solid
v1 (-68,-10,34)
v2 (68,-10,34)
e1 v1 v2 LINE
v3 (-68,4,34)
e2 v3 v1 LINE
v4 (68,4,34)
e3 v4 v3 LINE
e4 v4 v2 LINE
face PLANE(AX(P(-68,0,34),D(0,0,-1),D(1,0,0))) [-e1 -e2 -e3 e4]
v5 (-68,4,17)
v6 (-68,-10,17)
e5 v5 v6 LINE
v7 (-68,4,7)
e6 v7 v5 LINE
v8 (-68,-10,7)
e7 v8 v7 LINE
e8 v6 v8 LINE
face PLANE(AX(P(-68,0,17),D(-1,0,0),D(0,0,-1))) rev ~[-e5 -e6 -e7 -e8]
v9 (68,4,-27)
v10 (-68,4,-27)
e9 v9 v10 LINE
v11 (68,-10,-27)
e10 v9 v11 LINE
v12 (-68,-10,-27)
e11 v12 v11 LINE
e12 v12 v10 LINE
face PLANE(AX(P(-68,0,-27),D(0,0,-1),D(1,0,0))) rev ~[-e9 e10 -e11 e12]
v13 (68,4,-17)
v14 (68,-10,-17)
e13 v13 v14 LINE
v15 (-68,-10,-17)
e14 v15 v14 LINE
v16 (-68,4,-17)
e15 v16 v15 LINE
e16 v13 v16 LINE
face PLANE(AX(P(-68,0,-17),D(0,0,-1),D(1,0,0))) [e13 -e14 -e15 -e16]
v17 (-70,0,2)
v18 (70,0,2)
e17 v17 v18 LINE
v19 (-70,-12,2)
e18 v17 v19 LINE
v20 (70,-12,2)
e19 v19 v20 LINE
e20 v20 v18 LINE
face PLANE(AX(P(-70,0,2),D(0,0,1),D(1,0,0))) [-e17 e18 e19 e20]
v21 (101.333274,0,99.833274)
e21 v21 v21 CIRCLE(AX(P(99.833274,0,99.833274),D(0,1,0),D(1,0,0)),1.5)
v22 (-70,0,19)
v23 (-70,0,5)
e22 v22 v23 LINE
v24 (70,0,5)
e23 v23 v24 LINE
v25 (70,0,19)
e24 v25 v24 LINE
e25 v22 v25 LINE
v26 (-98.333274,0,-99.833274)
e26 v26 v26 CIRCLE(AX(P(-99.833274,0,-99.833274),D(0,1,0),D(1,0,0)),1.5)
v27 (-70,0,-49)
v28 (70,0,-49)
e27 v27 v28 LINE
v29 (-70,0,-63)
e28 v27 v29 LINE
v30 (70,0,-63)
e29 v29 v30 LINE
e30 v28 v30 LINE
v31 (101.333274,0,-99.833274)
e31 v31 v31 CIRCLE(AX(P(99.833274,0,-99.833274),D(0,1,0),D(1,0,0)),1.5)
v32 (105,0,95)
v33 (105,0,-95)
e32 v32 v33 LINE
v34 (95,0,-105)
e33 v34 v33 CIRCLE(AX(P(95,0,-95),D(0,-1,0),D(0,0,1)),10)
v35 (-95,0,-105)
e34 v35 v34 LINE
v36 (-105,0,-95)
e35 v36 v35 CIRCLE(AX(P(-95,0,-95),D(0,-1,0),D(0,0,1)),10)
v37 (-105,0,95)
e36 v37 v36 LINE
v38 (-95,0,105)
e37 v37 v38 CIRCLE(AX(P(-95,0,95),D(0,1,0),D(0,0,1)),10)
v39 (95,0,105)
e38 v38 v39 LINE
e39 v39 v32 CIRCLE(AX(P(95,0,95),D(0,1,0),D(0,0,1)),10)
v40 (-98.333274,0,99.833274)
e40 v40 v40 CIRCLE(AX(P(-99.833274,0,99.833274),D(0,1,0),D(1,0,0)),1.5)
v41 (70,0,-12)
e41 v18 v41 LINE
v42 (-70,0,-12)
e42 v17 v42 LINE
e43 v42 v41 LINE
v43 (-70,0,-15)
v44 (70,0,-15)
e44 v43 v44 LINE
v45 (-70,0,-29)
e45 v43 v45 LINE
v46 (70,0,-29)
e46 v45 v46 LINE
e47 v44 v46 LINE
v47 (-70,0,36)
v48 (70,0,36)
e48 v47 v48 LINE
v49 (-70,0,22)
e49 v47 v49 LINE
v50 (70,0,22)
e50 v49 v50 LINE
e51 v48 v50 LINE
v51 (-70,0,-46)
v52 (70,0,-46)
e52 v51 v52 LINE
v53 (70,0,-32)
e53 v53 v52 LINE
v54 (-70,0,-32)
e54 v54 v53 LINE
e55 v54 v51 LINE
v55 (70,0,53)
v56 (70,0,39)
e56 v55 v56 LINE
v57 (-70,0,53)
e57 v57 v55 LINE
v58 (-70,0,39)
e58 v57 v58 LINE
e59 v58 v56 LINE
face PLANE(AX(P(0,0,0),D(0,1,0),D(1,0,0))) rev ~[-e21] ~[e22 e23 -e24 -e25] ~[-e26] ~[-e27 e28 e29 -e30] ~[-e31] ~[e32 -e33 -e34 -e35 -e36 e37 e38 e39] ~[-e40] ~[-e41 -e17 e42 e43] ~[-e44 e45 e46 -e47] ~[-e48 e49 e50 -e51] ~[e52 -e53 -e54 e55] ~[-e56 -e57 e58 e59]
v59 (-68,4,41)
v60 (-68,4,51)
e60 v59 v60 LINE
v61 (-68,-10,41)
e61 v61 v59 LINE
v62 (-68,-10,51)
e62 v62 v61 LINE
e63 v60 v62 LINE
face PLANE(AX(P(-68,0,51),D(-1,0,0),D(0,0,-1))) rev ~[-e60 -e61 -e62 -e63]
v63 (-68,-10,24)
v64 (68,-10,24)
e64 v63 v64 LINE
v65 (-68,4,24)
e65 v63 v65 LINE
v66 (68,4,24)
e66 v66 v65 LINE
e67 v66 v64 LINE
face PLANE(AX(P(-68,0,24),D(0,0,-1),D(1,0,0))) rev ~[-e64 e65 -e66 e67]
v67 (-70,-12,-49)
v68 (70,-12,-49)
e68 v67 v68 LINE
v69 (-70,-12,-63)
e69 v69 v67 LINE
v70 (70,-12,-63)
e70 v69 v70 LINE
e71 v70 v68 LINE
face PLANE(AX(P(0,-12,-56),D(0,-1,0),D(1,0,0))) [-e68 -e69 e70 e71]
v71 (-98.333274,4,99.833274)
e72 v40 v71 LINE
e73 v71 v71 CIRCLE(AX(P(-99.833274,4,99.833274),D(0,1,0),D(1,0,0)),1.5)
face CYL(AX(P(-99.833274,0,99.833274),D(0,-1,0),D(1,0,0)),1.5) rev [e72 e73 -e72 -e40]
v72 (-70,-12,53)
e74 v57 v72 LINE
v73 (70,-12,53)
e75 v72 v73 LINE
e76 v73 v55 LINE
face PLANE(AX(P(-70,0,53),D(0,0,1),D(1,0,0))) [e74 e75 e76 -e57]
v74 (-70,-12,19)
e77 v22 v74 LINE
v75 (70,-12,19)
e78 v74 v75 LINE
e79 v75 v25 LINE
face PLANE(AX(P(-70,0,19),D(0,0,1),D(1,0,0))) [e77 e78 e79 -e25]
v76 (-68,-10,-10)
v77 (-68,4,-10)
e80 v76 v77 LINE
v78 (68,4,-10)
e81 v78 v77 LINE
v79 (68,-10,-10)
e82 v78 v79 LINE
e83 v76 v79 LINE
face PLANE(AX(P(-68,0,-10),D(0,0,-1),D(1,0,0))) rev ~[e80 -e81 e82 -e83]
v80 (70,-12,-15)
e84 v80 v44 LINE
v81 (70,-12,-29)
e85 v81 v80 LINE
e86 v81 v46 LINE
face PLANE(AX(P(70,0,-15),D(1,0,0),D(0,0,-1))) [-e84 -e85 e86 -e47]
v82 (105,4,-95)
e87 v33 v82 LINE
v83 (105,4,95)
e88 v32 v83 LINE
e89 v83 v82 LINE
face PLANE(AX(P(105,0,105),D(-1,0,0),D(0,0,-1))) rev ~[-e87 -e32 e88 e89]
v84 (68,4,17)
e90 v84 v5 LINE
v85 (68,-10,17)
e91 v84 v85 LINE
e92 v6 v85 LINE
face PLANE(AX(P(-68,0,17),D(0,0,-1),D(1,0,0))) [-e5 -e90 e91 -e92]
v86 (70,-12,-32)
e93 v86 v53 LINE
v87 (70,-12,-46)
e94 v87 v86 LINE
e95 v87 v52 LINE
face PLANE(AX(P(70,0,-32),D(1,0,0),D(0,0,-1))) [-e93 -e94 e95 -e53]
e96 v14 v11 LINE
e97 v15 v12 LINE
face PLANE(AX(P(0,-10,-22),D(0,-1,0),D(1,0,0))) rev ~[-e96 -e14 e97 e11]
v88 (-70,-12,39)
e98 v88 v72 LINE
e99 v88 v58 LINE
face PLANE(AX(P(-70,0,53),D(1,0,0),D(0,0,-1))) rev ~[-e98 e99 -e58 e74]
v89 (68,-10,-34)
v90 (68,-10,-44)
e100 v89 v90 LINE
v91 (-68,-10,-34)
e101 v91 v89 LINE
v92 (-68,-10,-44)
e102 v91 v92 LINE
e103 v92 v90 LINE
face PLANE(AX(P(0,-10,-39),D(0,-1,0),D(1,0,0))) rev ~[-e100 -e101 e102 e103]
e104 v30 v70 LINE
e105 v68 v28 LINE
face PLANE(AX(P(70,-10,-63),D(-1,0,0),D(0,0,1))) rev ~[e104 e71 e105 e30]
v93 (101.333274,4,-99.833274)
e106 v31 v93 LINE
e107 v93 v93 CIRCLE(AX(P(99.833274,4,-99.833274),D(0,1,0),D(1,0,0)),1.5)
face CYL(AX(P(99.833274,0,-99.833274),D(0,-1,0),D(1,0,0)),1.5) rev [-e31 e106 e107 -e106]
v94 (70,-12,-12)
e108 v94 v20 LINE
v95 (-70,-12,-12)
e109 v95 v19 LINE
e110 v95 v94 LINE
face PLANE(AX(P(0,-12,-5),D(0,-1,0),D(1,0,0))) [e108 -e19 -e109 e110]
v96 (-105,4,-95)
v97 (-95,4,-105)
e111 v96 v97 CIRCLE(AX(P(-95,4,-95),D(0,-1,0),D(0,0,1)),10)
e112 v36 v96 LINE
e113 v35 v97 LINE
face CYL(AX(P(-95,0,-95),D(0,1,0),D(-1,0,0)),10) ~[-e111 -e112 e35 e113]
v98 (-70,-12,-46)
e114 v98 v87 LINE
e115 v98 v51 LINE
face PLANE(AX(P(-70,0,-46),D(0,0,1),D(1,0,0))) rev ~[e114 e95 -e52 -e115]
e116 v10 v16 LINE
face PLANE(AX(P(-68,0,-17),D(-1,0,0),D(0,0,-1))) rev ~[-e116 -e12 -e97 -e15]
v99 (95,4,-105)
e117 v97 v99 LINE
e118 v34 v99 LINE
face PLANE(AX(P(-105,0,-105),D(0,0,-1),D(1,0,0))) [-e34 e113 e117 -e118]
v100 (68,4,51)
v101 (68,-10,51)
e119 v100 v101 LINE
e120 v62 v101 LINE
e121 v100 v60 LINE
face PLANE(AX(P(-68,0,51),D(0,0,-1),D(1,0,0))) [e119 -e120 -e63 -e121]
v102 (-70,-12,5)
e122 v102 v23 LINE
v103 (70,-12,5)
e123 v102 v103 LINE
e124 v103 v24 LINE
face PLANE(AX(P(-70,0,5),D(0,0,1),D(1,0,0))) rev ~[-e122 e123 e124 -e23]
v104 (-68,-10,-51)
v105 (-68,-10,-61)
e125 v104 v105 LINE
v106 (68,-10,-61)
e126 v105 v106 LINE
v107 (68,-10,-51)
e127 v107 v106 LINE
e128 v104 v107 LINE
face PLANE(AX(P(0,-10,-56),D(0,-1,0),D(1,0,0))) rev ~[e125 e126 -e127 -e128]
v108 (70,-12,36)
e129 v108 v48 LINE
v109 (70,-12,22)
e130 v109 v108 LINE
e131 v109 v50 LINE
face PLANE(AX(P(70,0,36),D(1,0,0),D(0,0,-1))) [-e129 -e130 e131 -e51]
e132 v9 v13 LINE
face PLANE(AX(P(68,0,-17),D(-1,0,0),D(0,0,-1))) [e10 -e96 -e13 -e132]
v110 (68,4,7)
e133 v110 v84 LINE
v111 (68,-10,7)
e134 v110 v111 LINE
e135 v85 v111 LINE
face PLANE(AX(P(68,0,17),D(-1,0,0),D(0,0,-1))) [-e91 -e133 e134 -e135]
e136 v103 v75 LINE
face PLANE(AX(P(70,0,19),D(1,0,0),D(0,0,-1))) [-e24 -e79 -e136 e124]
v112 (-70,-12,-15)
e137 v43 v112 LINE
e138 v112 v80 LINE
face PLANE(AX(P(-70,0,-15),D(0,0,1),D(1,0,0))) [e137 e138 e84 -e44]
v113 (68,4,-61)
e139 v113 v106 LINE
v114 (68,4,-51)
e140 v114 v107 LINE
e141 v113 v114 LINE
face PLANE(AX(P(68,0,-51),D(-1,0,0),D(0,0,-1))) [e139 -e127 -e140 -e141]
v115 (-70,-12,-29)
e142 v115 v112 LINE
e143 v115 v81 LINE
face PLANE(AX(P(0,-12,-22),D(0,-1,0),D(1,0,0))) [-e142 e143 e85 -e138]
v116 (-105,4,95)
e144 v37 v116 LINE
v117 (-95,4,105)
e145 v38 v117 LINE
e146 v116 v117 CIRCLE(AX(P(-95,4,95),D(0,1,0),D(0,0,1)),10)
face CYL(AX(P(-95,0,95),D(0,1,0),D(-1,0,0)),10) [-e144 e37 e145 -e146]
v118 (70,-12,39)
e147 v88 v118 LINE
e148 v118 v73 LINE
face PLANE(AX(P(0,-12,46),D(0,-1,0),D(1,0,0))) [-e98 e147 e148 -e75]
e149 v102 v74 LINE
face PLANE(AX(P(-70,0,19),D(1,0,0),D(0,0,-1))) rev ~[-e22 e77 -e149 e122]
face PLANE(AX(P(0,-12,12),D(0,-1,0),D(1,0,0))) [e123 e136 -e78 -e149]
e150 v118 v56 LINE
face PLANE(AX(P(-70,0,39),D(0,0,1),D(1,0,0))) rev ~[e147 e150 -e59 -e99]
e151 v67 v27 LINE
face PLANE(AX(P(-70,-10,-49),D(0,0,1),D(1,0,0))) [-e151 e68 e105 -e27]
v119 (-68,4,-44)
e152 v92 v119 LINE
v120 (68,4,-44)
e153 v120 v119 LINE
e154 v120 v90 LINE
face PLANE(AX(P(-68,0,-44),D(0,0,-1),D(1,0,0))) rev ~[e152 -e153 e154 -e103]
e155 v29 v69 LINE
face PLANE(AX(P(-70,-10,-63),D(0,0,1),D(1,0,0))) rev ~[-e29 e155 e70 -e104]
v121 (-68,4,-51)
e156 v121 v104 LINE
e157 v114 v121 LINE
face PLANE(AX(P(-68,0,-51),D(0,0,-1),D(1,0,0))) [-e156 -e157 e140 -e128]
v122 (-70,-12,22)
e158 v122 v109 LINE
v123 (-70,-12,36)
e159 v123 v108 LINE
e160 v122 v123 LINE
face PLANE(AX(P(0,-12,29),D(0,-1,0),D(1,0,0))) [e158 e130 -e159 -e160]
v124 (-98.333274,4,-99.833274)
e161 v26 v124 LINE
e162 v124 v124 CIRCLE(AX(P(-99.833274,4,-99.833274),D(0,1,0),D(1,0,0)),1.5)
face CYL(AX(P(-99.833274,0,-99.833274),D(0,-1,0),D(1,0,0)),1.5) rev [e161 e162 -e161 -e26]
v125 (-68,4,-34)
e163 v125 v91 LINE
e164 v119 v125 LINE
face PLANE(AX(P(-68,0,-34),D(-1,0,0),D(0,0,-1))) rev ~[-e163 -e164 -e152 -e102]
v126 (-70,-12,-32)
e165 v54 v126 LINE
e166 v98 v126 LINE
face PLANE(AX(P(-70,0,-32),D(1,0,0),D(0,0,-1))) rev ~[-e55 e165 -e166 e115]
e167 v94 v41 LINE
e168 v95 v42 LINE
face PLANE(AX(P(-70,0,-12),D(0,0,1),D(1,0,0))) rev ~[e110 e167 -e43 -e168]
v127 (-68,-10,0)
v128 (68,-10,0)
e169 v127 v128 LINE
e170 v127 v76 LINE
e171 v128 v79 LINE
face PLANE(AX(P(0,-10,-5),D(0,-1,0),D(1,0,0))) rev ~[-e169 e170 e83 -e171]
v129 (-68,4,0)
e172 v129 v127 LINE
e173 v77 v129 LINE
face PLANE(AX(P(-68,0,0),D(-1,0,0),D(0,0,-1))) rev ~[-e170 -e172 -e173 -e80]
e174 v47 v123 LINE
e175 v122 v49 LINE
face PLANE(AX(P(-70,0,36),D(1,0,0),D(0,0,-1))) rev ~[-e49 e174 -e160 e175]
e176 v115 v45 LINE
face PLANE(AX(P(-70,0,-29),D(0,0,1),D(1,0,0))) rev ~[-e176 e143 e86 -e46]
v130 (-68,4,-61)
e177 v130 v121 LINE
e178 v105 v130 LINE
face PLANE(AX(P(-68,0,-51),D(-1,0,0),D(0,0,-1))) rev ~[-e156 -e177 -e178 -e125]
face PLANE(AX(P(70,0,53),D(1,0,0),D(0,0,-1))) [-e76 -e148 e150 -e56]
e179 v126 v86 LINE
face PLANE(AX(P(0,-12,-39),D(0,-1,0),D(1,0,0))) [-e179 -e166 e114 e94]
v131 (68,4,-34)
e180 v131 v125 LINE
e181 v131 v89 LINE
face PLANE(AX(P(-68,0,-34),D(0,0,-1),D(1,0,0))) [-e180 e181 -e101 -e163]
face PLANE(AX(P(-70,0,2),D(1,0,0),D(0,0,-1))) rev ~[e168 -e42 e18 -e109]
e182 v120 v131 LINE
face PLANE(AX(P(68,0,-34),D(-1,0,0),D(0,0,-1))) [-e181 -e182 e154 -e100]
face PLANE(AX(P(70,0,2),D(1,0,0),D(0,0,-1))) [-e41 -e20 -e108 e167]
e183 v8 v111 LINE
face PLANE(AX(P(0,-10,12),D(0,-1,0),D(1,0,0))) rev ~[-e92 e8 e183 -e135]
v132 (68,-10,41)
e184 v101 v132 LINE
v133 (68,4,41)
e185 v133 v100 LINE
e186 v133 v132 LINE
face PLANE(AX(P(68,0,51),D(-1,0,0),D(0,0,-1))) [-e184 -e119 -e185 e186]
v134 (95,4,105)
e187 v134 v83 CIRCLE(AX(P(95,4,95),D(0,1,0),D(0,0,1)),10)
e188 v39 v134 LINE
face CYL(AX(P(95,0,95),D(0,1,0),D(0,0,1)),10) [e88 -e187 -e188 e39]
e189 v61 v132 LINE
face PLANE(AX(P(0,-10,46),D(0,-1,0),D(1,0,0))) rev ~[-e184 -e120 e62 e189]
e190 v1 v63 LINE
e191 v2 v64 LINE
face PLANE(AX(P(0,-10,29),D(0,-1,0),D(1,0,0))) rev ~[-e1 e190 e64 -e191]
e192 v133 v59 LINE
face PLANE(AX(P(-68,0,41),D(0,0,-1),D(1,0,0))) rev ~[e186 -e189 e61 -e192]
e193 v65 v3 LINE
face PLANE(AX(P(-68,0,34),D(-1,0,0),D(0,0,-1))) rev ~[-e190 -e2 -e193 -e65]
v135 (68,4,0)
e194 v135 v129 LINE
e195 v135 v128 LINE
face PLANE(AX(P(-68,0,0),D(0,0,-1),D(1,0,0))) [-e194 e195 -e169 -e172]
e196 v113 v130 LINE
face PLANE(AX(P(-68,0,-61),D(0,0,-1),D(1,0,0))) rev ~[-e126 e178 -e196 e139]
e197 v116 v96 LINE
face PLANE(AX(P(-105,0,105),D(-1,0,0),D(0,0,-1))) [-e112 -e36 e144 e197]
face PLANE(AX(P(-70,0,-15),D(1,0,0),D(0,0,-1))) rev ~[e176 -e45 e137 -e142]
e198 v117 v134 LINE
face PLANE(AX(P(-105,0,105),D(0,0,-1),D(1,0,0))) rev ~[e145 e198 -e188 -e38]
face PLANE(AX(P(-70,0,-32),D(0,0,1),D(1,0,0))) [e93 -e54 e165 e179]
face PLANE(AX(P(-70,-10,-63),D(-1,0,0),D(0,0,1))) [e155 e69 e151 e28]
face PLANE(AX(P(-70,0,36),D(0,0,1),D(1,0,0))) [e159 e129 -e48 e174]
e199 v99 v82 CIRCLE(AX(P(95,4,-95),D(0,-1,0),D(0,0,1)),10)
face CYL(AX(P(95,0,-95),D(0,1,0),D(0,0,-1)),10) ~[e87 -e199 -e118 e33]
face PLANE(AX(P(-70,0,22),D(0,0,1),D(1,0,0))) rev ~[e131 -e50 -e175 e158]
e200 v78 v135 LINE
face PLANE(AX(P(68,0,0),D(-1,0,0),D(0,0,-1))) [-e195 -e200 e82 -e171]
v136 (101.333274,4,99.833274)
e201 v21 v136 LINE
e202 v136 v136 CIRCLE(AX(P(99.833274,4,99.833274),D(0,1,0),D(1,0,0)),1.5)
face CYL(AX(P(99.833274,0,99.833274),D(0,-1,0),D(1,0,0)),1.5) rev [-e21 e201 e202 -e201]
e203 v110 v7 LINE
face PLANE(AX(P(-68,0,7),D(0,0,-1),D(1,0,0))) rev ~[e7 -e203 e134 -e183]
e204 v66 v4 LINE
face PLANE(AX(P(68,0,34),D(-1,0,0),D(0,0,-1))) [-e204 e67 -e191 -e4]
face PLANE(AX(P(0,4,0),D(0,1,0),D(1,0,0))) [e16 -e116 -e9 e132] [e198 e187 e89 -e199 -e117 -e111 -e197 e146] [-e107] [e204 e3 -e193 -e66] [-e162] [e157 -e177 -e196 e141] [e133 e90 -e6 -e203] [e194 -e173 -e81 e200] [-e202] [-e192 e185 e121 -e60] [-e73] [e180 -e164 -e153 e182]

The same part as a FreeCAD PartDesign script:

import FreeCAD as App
import Part
import Sketcher
Q = App.Units.Quantity


def edges_at(feature, points):
    """Names of the edges that pass closest to the given points."""
    edges = feature.Shape.Edges
    near = lambda p: min(range(len(edges)), key=lambda i: edges[i].distToShape(Part.Vertex(*p))[0])
    return sorted({f"Edge{near(p) + 1}" for p in points})

doc = App.newDocument("Part")
body = doc.addObject("PartDesign::Body", "Body")

sketch1 = body.newObject("Sketcher::SketchObject", "Sketch")
sketch1.AttachmentSupport = (doc.getObject("XZ_Plane"), [""])
sketch1.MapMode = "FlatFace"
sketch1.addGeometry([
    Part.LineSegment(App.Vector(-105, -105, 0), App.Vector(-105, 105, 0)),
    Part.LineSegment(App.Vector(-105, 105, 0), App.Vector(105, 105, 0)),
    Part.LineSegment(App.Vector(105, 105, 0), App.Vector(105, -105, 0)),
    Part.LineSegment(App.Vector(105, -105, 0), App.Vector(-105, -105, 0)),
], False)
sketch1.addConstraint([
    Sketcher.Constraint("Coincident", 0, 2, 1, 1),
    Sketcher.Constraint("Coincident", 1, 2, 2, 1),
    Sketcher.Constraint("Coincident", 2, 2, 3, 1),
    Sketcher.Constraint("Coincident", 3, 2, 0, 1),
    Sketcher.Constraint("Vertical", 0),
    Sketcher.Constraint("Horizontal", 1),
    Sketcher.Constraint("Vertical", 2),
    Sketcher.Constraint("Horizontal", 3),
    Sketcher.Constraint("Symmetric", 0, 2, 2, 2, -1, 1),
    Sketcher.Constraint("Equal", 3, 0),
    Sketcher.Constraint("DistanceX", 1, 1, 1, 2, Q("210 mm")),
])
pad1 = body.newObject("PartDesign::Pad", "Pad")
pad1.Profile = sketch1
pad1.Length = 4
pad1.Reversed = True

sketch2 = body.newObject("Sketcher::SketchObject", "Sketch001")
sketch2.AttachmentSupport = (doc.getObject("XZ_Plane"), [""])
sketch2.MapMode = "FlatFace"
sketch2.addGeometry([
    Part.Circle(App.Vector(-99.8, -99.8, 0), App.Vector(0, 0, 1), 1.5),
    Part.Circle(App.Vector(-99.8, 99.8, 0), App.Vector(0, 0, 1), 1.5),
    Part.Circle(App.Vector(99.8, 99.8, 0), App.Vector(0, 0, 1), 1.5),
    Part.Circle(App.Vector(99.8, -99.8, 0), App.Vector(0, 0, 1), 1.5),
], False)
sketch2.addConstraint([
    Sketcher.Constraint("Equal", 0, 1),
    Sketcher.Constraint("Equal", 1, 2),
    Sketcher.Constraint("Equal", 2, 3),
    Sketcher.Constraint("Symmetric", 0, 3, 2, 3, -1, 1),
    Sketcher.Constraint("Symmetric", 1, 3, 3, 3, -1, 1),
    Sketcher.Constraint("Symmetric", 1, 3, 2, 3, -2),
    Sketcher.Constraint("Diameter", 0, Q("3 mm")),
    Sketcher.Constraint("DistanceX", 0, 3, -1, 1, Q("99.833274 mm")),
    Sketcher.Constraint("DistanceY", 0, 3, -1, 1, Q("99.833274 mm")),
])
pocket1 = body.newObject("PartDesign::Pocket", "Pocket")
pocket1.Profile = sketch2
pocket1.Length = 4
doc.recompute()

fillet = body.newObject("PartDesign::Fillet", "Fillet")
fillet.Base = (pocket1, edges_at(pocket1, [
    (-105, 2, -105),
    (-105, 2, 105),
    (105, 2, 105),
    (105, 2, -105),
]))
fillet.Radius = 10

sketch3 = body.newObject("Sketcher::SketchObject", "Sketch002")
sketch3.AttachmentSupport = (doc.getObject("XZ_Plane"), [""])
sketch3.MapMode = "FlatFace"
sketch3.addGeometry([
    Part.LineSegment(App.Vector(-70, -63, 0), App.Vector(-70, -49, 0)),
    Part.LineSegment(App.Vector(-70, -49, 0), App.Vector(70, -49, 0)),
    Part.LineSegment(App.Vector(70, -49, 0), App.Vector(70, -63, 0)),
    Part.LineSegment(App.Vector(70, -63, 0), App.Vector(-70, -63, 0)),
    Part.LineSegment(App.Vector(68, -51, 0), App.Vector(-68, -51, 0)),
    Part.LineSegment(App.Vector(-68, -51, 0), App.Vector(-68, -61, 0)),
    Part.LineSegment(App.Vector(-68, -61, 0), App.Vector(68, -61, 0)),
    Part.LineSegment(App.Vector(68, -61, 0), App.Vector(68, -51, 0)),
    Part.LineSegment(App.Vector(-70, -46, 0), App.Vector(-70, -32, 0)),
    Part.LineSegment(App.Vector(-70, -32, 0), App.Vector(70, -32, 0)),
    Part.LineSegment(App.Vector(70, -32, 0), App.Vector(70, -46, 0)),
    Part.LineSegment(App.Vector(70, -46, 0), App.Vector(-70, -46, 0)),
    Part.LineSegment(App.Vector(68, -34, 0), App.Vector(-68, -34, 0)),
    Part.LineSegment(App.Vector(-68, -34, 0), App.Vector(-68, -44, 0)),
    Part.LineSegment(App.Vector(-68, -44, 0), App.Vector(68, -44, 0)),
    Part.LineSegment(App.Vector(68, -44, 0), App.Vector(68, -34, 0)),
    Part.LineSegment(App.Vector(-70, -29, 0), App.Vector(-70, -15, 0)),
    Part.LineSegment(App.Vector(-70, -15, 0), App.Vector(70, -15, 0)),
    Part.LineSegment(App.Vector(70, -15, 0), App.Vector(70, -29, 0)),
    Part.LineSegment(App.Vector(70, -29, 0), App.Vector(-70, -29, 0)),
    Part.LineSegment(App.Vector(68, -17, 0), App.Vector(-68, -17, 0)),
    Part.LineSegment(App.Vector(-68, -17, 0), App.Vector(-68, -27, 0)),
    Part.LineSegment(App.Vector(-68, -27, 0), App.Vector(68, -27, 0)),
    Part.LineSegment(App.Vector(68, -27, 0), App.Vector(68, -17, 0)),
    Part.LineSegment(App.Vector(-70, -12, 0), App.Vector(-70, 2, 0)),
    Part.LineSegment(App.Vector(-70, 2, 0), App.Vector(70, 2, 0)),
    Part.LineSegment(App.Vector(70, 2, 0), App.Vector(70, -12, 0)),
    Part.LineSegment(App.Vector(70, -12, 0), App.Vector(-70, -12, 0)),
    Part.LineSegment(App.Vector(68, 0, 0), App.Vector(-68, 0, 0)),
    Part.LineSegment(App.Vector(-68, 0, 0), App.Vector(-68, -10, 0)),
    Part.LineSegment(App.Vector(-68, -10, 0), App.Vector(68, -10, 0)),
    Part.LineSegment(App.Vector(68, -10, 0), App.Vector(68, 0, 0)),
    Part.LineSegment(App.Vector(-70, 5, 0), App.Vector(-70, 19, 0)),
    Part.LineSegment(App.Vector(-70, 19, 0), App.Vector(70, 19, 0)),
    Part.LineSegment(App.Vector(70, 19, 0), App.Vector(70, 5, 0)),
    Part.LineSegment(App.Vector(70, 5, 0), App.Vector(-70, 5, 0)),
    Part.LineSegment(App.Vector(68, 17, 0), App.Vector(-68, 17, 0)),
    Part.LineSegment(App.Vector(-68, 17, 0), App.Vector(-68, 7, 0)),
    Part.LineSegment(App.Vector(-68, 7, 0), App.Vector(68, 7, 0)),
    Part.LineSegment(App.Vector(68, 7, 0), App.Vector(68, 17, 0)),
    Part.LineSegment(App.Vector(-70, 22, 0), App.Vector(-70, 36, 0)),
    Part.LineSegment(App.Vector(-70, 36, 0), App.Vector(70, 36, 0)),
    Part.LineSegment(App.Vector(70, 36, 0), App.Vector(70, 22, 0)),
    Part.LineSegment(App.Vector(70, 22, 0), App.Vector(-70, 22, 0)),
    Part.LineSegment(App.Vector(68, 34, 0), App.Vector(-68, 34, 0)),
    Part.LineSegment(App.Vector(-68, 34, 0), App.Vector(-68, 24, 0)),
    Part.LineSegment(App.Vector(-68, 24, 0), App.Vector(68, 24, 0)),
    Part.LineSegment(App.Vector(68, 24, 0), App.Vector(68, 34, 0)),
    Part.LineSegment(App.Vector(-70, 39, 0), App.Vector(-70, 53, 0)),
    Part.LineSegment(App.Vector(-70, 53, 0), App.Vector(70, 53, 0)),
    Part.LineSegment(App.Vector(70, 53, 0), App.Vector(70, 39, 0)),
    Part.LineSegment(App.Vector(70, 39, 0), App.Vector(-70, 39, 0)),
    Part.LineSegment(App.Vector(68, 51, 0), App.Vector(-68, 51, 0)),
    Part.LineSegment(App.Vector(-68, 51, 0), App.Vector(-68, 41, 0)),
    Part.LineSegment(App.Vector(-68, 41, 0), App.Vector(68, 41, 0)),
    Part.LineSegment(App.Vector(68, 41, 0), App.Vector(68, 51, 0)),
], False)
sketch3.addConstraint([
    Sketcher.Constraint("Coincident", 0, 2, 1, 1),
    Sketcher.Constraint("Coincident", 1, 2, 2, 1),
    Sketcher.Constraint("Coincident", 2, 2, 3, 1),
    Sketcher.Constraint("Coincident", 3, 2, 0, 1),
    Sketcher.Constraint("Coincident", 4, 2, 5, 1),
    Sketcher.Constraint("Coincident", 5, 2, 6, 1),
    Sketcher.Constraint("Coincident", 6, 2, 7, 1),
    Sketcher.Constraint("Coincident", 7, 2, 4, 1),
    Sketcher.Constraint("Coincident", 8, 2, 9, 1),
    Sketcher.Constraint("Coincident", 9, 2, 10, 1),
    Sketcher.Constraint("Coincident", 10, 2, 11, 1),
    Sketcher.Constraint("Coincident", 11, 2, 8, 1),
    Sketcher.Constraint("Coincident", 12, 2, 13, 1),
    Sketcher.Constraint("Coincident", 13, 2, 14, 1),
    Sketcher.Constraint("Coincident", 14, 2, 15, 1),
    Sketcher.Constraint("Coincident", 15, 2, 12, 1),
    Sketcher.Constraint("Coincident", 16, 2, 17, 1),
    Sketcher.Constraint("Coincident", 17, 2, 18, 1),
    Sketcher.Constraint("Coincident", 18, 2, 19, 1),
    Sketcher.Constraint("Coincident", 19, 2, 16, 1),
    Sketcher.Constraint("Coincident", 20, 2, 21, 1),
    Sketcher.Constraint("Coincident", 21, 2, 22, 1),
    Sketcher.Constraint("Coincident", 22, 2, 23, 1),
    Sketcher.Constraint("Coincident", 23, 2, 20, 1),
    Sketcher.Constraint("Coincident", 24, 2, 25, 1),
    Sketcher.Constraint("Coincident", 25, 2, 26, 1),
    Sketcher.Constraint("Coincident", 26, 2, 27, 1),
    Sketcher.Constraint("Coincident", 27, 2, 24, 1),
    Sketcher.Constraint("Coincident", 28, 2, 29, 1),
    Sketcher.Constraint("Coincident", 29, 2, 30, 1),
    Sketcher.Constraint("Coincident", 30, 2, 31, 1),
    Sketcher.Constraint("Coincident", 31, 2, 28, 1),
    Sketcher.Constraint("Coincident", 32, 2, 33, 1),
    Sketcher.Constraint("Coincident", 33, 2, 34, 1),
    Sketcher.Constraint("Coincident", 34, 2, 35, 1),
    Sketcher.Constraint("Coincident", 35, 2, 32, 1),
    Sketcher.Constraint("Coincident", 36, 2, 37, 1),
    Sketcher.Constraint("Coincident", 37, 2, 38, 1),
    Sketcher.Constraint("Coincident", 38, 2, 39, 1),
    Sketcher.Constraint("Coincident", 39, 2, 36, 1),
    Sketcher.Constraint("Coincident", 40, 2, 41, 1),
    Sketcher.Constraint("Coincident", 41, 2, 42, 1),
    Sketcher.Constraint("Coincident", 42, 2, 43, 1),
    Sketcher.Constraint("Coincident", 43, 2, 40, 1),
    Sketcher.Constraint("Coincident", 44, 2, 45, 1),
    Sketcher.Constraint("Coincident", 45, 2, 46, 1),
    Sketcher.Constraint("Coincident", 46, 2, 47, 1),
    Sketcher.Constraint("Coincident", 47, 2, 44, 1),
    Sketcher.Constraint("Coincident", 48, 2, 49, 1),
    Sketcher.Constraint("Coincident", 49, 2, 50, 1),
    Sketcher.Constraint("Coincident", 50, 2, 51, 1),
    Sketcher.Constraint("Coincident", 51, 2, 48, 1),
    Sketcher.Constraint("Coincident", 52, 2, 53, 1),
    Sketcher.Constraint("Coincident", 53, 2, 54, 1),
    Sketcher.Constraint("Coincident", 54, 2, 55, 1),
    Sketcher.Constraint("Coincident", 55, 2, 52, 1),
    Sketcher.Constraint("Vertical", 0),
    Sketcher.Constraint("Horizontal", 1),
    Sketcher.Constraint("Vertical", 2),
    Sketcher.Constraint("Horizontal", 3),
    Sketcher.Constraint("Horizontal", 4),
    Sketcher.Constraint("Vertical", 5),
    Sketcher.Constraint("Horizontal", 6),
    Sketcher.Constraint("Vertical", 7),
    Sketcher.Constraint("Vertical", 8),
    Sketcher.Constraint("Horizontal", 9),
    Sketcher.Constraint("Vertical", 10),
    Sketcher.Constraint("Horizontal", 11),
    Sketcher.Constraint("Horizontal", 12),
    Sketcher.Constraint("Vertical", 13),
    Sketcher.Constraint("Horizontal", 14),
    Sketcher.Constraint("Vertical", 15),
    Sketcher.Constraint("Vertical", 16),
    Sketcher.Constraint("Horizontal", 17),
    Sketcher.Constraint("Vertical", 18),
    Sketcher.Constraint("Horizontal", 19),
    Sketcher.Constraint("Horizontal", 20),
    Sketcher.Constraint("Vertical", 21),
    Sketcher.Constraint("Horizontal", 22),
    Sketcher.Constraint("Vertical", 23),
    Sketcher.Constraint("Vertical", 24),
    Sketcher.Constraint("Horizontal", 25),
    Sketcher.Constraint("Vertical", 26),
    Sketcher.Constraint("Horizontal", 27),
    Sketcher.Constraint("Horizontal", 28),
    Sketcher.Constraint("Vertical", 29),
    Sketcher.Constraint("Horizontal", 30),
    Sketcher.Constraint("Vertical", 31),
    Sketcher.Constraint("Vertical", 32),
    Sketcher.Constraint("Horizontal", 33),
    Sketcher.Constraint("Vertical", 34),
    Sketcher.Constraint("Horizontal", 35),
    Sketcher.Constraint("Horizontal", 36),
    Sketcher.Constraint("Vertical", 37),
    Sketcher.Constraint("Horizontal", 38),
    Sketcher.Constraint("Vertical", 39),
    Sketcher.Constraint("Vertical", 40),
    Sketcher.Constraint("Horizontal", 41),
    Sketcher.Constraint("Vertical", 42),
    Sketcher.Constraint("Horizontal", 43),
    Sketcher.Constraint("Horizontal", 44),
    Sketcher.Constraint("Vertical", 45),
    Sketcher.Constraint("Horizontal", 46),
    Sketcher.Constraint("Vertical", 47),
    Sketcher.Constraint("Vertical", 48),
    Sketcher.Constraint("Horizontal", 49),
    Sketcher.Constraint("Vertical", 50),
    Sketcher.Constraint("Horizontal", 51),
    Sketcher.Constraint("Horizontal", 52),
    Sketcher.Constraint("Vertical", 53),
    Sketcher.Constraint("Horizontal", 54),
    Sketcher.Constraint("Vertical", 55),
    Sketcher.Constraint("Symmetric", 28, 2, 31, 2, -1, 1),
    Sketcher.Constraint("Symmetric", 23, 2, 36, 2, -1, 1),
    Sketcher.Constraint("Symmetric", 15, 2, 44, 2, -1, 1),
    Sketcher.Constraint("Symmetric", 7, 2, 52, 2, -1, 1),
    Sketcher.Constraint("Vertical", 3, 2, 8, 2),
    Sketcher.Constraint("Vertical", 2, 2, 9, 2),
    Sketcher.Constraint("Vertical", 5, 2, 12, 2),
    Sketcher.Constraint("Vertical", 7, 2, 14, 2),
    Sketcher.Constraint("Vertical", 11, 2, 16, 2),
    Sketcher.Constraint("Vertical", 10, 2, 17, 2),
    Sketcher.Constraint("Vertical", 13, 2, 20, 2),
    Sketcher.Constraint("Vertical", 15, 2, 22, 2),
    Sketcher.Constraint("Vertical", 19, 2, 24, 2),
    Sketcher.Constraint("Vertical", 18, 2, 25, 2),
    Sketcher.Constraint("Vertical", 21, 2, 28, 2),
    Sketcher.Constraint("Vertical", 23, 2, 30, 2),
    Sketcher.Constraint("Vertical", 27, 2, 32, 2),
    Sketcher.Constraint("Vertical", 26, 2, 33, 2),
    Sketcher.Constraint("Vertical", 31, 2, 38, 2),
    Sketcher.Constraint("Vertical", 35, 2, 40, 2),
    Sketcher.Constraint("Vertical", 34, 2, 41, 2),
    Sketcher.Constraint("Vertical", 39, 2, 46, 2),
    Sketcher.Constraint("Vertical", 43, 2, 48, 2),
    Sketcher.Constraint("Vertical", 42, 2, 49, 2),
    Sketcher.Constraint("Vertical", 47, 2, 54, 2),
    Sketcher.Constraint("Equal", 2, 8),
    Sketcher.Constraint("Equal", 7, 13),
    Sketcher.Constraint("Equal", 10, 16),
    Sketcher.Constraint("Equal", 15, 21),
    Sketcher.Constraint("Equal", 18, 24),
    Sketcher.Constraint("Equal", 23, 29),
    Sketcher.Constraint("Equal", 26, 32),
    Sketcher.Constraint("Equal", 31, 37),
    Sketcher.Constraint("Equal", 34, 40),
    Sketcher.Constraint("Equal", 39, 45),
    Sketcher.Constraint("Equal", 42, 48),
    Sketcher.Constraint("Equal", 47, 53),
    Sketcher.Constraint("DistanceX", 1, 1, 1, 2, Q("140 mm")),
    Sketcher.Constraint("DistanceX", 4, 2, 4, 1, Q("136 mm")),
    Sketcher.Constraint("DistanceY", 0, 1, 0, 2, Q("14 mm")),
    Sketcher.Constraint("DistanceY", 5, 2, 5, 1, Q("10 mm")),
    Sketcher.Constraint("DistanceX", 0, 2, -1, 1, Q("70 mm")),
    Sketcher.Constraint("DistanceY", 0, 2, -1, 1, Q("49 mm")),
    Sketcher.Constraint("DistanceY", 4, 2, -1, 1, Q("51 mm")),
    Sketcher.Constraint("DistanceY", 8, 2, -1, 1, Q("32 mm")),
    Sketcher.Constraint("DistanceY", 12, 2, -1, 1, Q("34 mm")),
    Sketcher.Constraint("DistanceY", 16, 2, -1, 1, Q("15 mm")),
    Sketcher.Constraint("DistanceY", 20, 2, -1, 1, Q("17 mm")),
    Sketcher.Constraint("DistanceY", -1, 1, 24, 2, Q("2 mm")),
    Sketcher.Constraint("DistanceY", -1, 1, 32, 2, Q("19 mm")),
    Sketcher.Constraint("DistanceY", -1, 1, 40, 2, Q("36 mm")),
    Sketcher.Constraint("DistanceY", -1, 1, 48, 2, Q("53 mm")),
])
pad2 = body.newObject("PartDesign::Pad", "Pad001")
pad2.Profile = sketch3
pad2.Length = 10

sketch4 = body.newObject("Sketcher::SketchObject", "Sketch003")
sketch4.AttachmentSupport = (doc.getObject("XZ_Plane"), [""])
sketch4.MapMode = "FlatFace"
sketch4.addGeometry([
    Part.LineSegment(App.Vector(-68, -61, 0), App.Vector(-68, -51, 0)),
    Part.LineSegment(App.Vector(-68, -51, 0), App.Vector(68, -51, 0)),
    Part.LineSegment(App.Vector(68, -51, 0), App.Vector(68, -61, 0)),
    Part.LineSegment(App.Vector(68, -61, 0), App.Vector(-68, -61, 0)),
    Part.LineSegment(App.Vector(-68, -44, 0), App.Vector(-68, -34, 0)),
    Part.LineSegment(App.Vector(-68, -34, 0), App.Vector(68, -34, 0)),
    Part.LineSegment(App.Vector(68, -34, 0), App.Vector(68, -44, 0)),
    Part.LineSegment(App.Vector(68, -44, 0), App.Vector(-68, -44, 0)),
    Part.LineSegment(App.Vector(-68, -27, 0), App.Vector(-68, -17, 0)),
    Part.LineSegment(App.Vector(-68, -17, 0), App.Vector(68, -17, 0)),
    Part.LineSegment(App.Vector(68, -17, 0), App.Vector(68, -27, 0)),
    Part.LineSegment(App.Vector(68, -27, 0), App.Vector(-68, -27, 0)),
    Part.LineSegment(App.Vector(-68, -10, 0), App.Vector(-68, 0, 0)),
    Part.LineSegment(App.Vector(-68, 0, 0), App.Vector(68, 0, 0)),
    Part.LineSegment(App.Vector(68, 0, 0), App.Vector(68, -10, 0)),
    Part.LineSegment(App.Vector(68, -10, 0), App.Vector(-68, -10, 0)),
    Part.LineSegment(App.Vector(-68, 7, 0), App.Vector(-68, 17, 0)),
    Part.LineSegment(App.Vector(-68, 17, 0), App.Vector(68, 17, 0)),
    Part.LineSegment(App.Vector(68, 17, 0), App.Vector(68, 7, 0)),
    Part.LineSegment(App.Vector(68, 7, 0), App.Vector(-68, 7, 0)),
    Part.LineSegment(App.Vector(-68, 24, 0), App.Vector(-68, 34, 0)),
    Part.LineSegment(App.Vector(-68, 34, 0), App.Vector(68, 34, 0)),
    Part.LineSegment(App.Vector(68, 34, 0), App.Vector(68, 24, 0)),
    Part.LineSegment(App.Vector(68, 24, 0), App.Vector(-68, 24, 0)),
    Part.LineSegment(App.Vector(-68, 41, 0), App.Vector(-68, 51, 0)),
    Part.LineSegment(App.Vector(-68, 51, 0), App.Vector(68, 51, 0)),
    Part.LineSegment(App.Vector(68, 51, 0), App.Vector(68, 41, 0)),
    Part.LineSegment(App.Vector(68, 41, 0), App.Vector(-68, 41, 0)),
], False)
sketch4.addConstraint([
    Sketcher.Constraint("Coincident", 0, 2, 1, 1),
    Sketcher.Constraint("Coincident", 1, 2, 2, 1),
    Sketcher.Constraint("Coincident", 2, 2, 3, 1),
    Sketcher.Constraint("Coincident", 3, 2, 0, 1),
    Sketcher.Constraint("Coincident", 4, 2, 5, 1),
    Sketcher.Constraint("Coincident", 5, 2, 6, 1),
    Sketcher.Constraint("Coincident", 6, 2, 7, 1),
    Sketcher.Constraint("Coincident", 7, 2, 4, 1),
    Sketcher.Constraint("Coincident", 8, 2, 9, 1),
    Sketcher.Constraint("Coincident", 9, 2, 10, 1),
    Sketcher.Constraint("Coincident", 10, 2, 11, 1),
    Sketcher.Constraint("Coincident", 11, 2, 8, 1),
    Sketcher.Constraint("Coincident", 12, 2, 13, 1),
    Sketcher.Constraint("Coincident", 13, 2, 14, 1),
    Sketcher.Constraint("Coincident", 14, 2, 15, 1),
    Sketcher.Constraint("Coincident", 15, 2, 12, 1),
    Sketcher.Constraint("Coincident", 16, 2, 17, 1),
    Sketcher.Constraint("Coincident", 17, 2, 18, 1),
    Sketcher.Constraint("Coincident", 18, 2, 19, 1),
    Sketcher.Constraint("Coincident", 19, 2, 16, 1),
    Sketcher.Constraint("Coincident", 20, 2, 21, 1),
    Sketcher.Constraint("Coincident", 21, 2, 22, 1),
    Sketcher.Constraint("Coincident", 22, 2, 23, 1),
    Sketcher.Constraint("Coincident", 23, 2, 20, 1),
    Sketcher.Constraint("Coincident", 24, 2, 25, 1),
    Sketcher.Constraint("Coincident", 25, 2, 26, 1),
    Sketcher.Constraint("Coincident", 26, 2, 27, 1),
    Sketcher.Constraint("Coincident", 27, 2, 24, 1),
    Sketcher.Constraint("Vertical", 0),
    Sketcher.Constraint("Horizontal", 1),
    Sketcher.Constraint("Vertical", 2),
    Sketcher.Constraint("Horizontal", 3),
    Sketcher.Constraint("Vertical", 4),
    Sketcher.Constraint("Horizontal", 5),
    Sketcher.Constraint("Vertical", 6),
    Sketcher.Constraint("Horizontal", 7),
    Sketcher.Constraint("Vertical", 8),
    Sketcher.Constraint("Horizontal", 9),
    Sketcher.Constraint("Vertical", 10),
    Sketcher.Constraint("Horizontal", 11),
    Sketcher.Constraint("Vertical", 12),
    Sketcher.Constraint("Horizontal", 13),
    Sketcher.Constraint("Vertical", 14),
    Sketcher.Constraint("Horizontal", 15),
    Sketcher.Constraint("Vertical", 16),
    Sketcher.Constraint("Horizontal", 17),
    Sketcher.Constraint("Vertical", 18),
    Sketcher.Constraint("Horizontal", 19),
    Sketcher.Constraint("Vertical", 20),
    Sketcher.Constraint("Horizontal", 21),
    Sketcher.Constraint("Vertical", 22),
    Sketcher.Constraint("Horizontal", 23),
    Sketcher.Constraint("Vertical", 24),
    Sketcher.Constraint("Horizontal", 25),
    Sketcher.Constraint("Vertical", 26),
    Sketcher.Constraint("Horizontal", 27),
    Sketcher.Constraint("Symmetric", 12, 2, 13, 2, -1, 1),
    Sketcher.Constraint("Symmetric", 9, 2, 16, 2, -1, 1),
    Sketcher.Constraint("Symmetric", 5, 2, 20, 2, -1, 1),
    Sketcher.Constraint("Symmetric", 1, 2, 24, 2, -1, 1),
    Sketcher.Constraint("Vertical", 3, 2, 4, 2),
    Sketcher.Constraint("Vertical", 2, 2, 5, 2),
    Sketcher.Constraint("Vertical", 7, 2, 8, 2),
    Sketcher.Constraint("Vertical", 6, 2, 9, 2),
    Sketcher.Constraint("Vertical", 11, 2, 12, 2),
    Sketcher.Constraint("Vertical", 10, 2, 13, 2),
    Sketcher.Constraint("Vertical", 14, 2, 17, 2),
    Sketcher.Constraint("Vertical", 18, 2, 21, 2),
    Sketcher.Constraint("Vertical", 22, 2, 25, 2),
    Sketcher.Constraint("Equal", 2, 4),
    Sketcher.Constraint("Equal", 6, 8),
    Sketcher.Constraint("Equal", 10, 12),
    Sketcher.Constraint("Equal", 14, 16),
    Sketcher.Constraint("Equal", 18, 20),
    Sketcher.Constraint("Equal", 22, 24),
    Sketcher.Constraint("DistanceX", 1, 1, 1, 2, Q("136 mm")),
    Sketcher.Constraint("DistanceY", 0, 1, 0, 2, Q("10 mm")),
    Sketcher.Constraint("DistanceY", 0, 2, -1, 1, Q("51 mm")),
    Sketcher.Constraint("DistanceY", 4, 2, -1, 1, Q("34 mm")),
    Sketcher.Constraint("DistanceY", 8, 2, -1, 1, Q("17 mm")),
])
pocket2 = body.newObject("PartDesign::Pocket", "Pocket001")
pocket2.Profile = sketch4
pocket2.Length = 12

sketch5 = body.newObject("Sketcher::SketchObject", "Sketch004")
sketch5.AttachmentSupport = (doc.getObject("XZ_Plane"), [""])
sketch5.MapMode = "FlatFace"
sketch5.AttachmentOffset = App.Placement(App.Vector(0, 0, 10), App.Rotation())
sketch5.addGeometry([
    Part.LineSegment(App.Vector(-70, -49, 0), App.Vector(-70, -63, 0)),
    Part.LineSegment(App.Vector(-70, -63, 0), App.Vector(70, -63, 0)),
    Part.LineSegment(App.Vector(70, -63, 0), App.Vector(70, -49, 0)),
    Part.LineSegment(App.Vector(70, -49, 0), App.Vector(-70, -49, 0)),
    Part.LineSegment(App.Vector(-70, -32, 0), App.Vector(-70, -46, 0)),
    Part.LineSegment(App.Vector(-70, -46, 0), App.Vector(70, -46, 0)),
    Part.LineSegment(App.Vector(70, -46, 0), App.Vector(70, -32, 0)),
    Part.LineSegment(App.Vector(70, -32, 0), App.Vector(-70, -32, 0)),
    Part.LineSegment(App.Vector(-70, -15, 0), App.Vector(-70, -29, 0)),
    Part.LineSegment(App.Vector(-70, -29, 0), App.Vector(70, -29, 0)),
    Part.LineSegment(App.Vector(70, -29, 0), App.Vector(70, -15, 0)),
    Part.LineSegment(App.Vector(70, -15, 0), App.Vector(-70, -15, 0)),
    Part.LineSegment(App.Vector(-70, 2, 0), App.Vector(-70, -12, 0)),
    Part.LineSegment(App.Vector(-70, -12, 0), App.Vector(70, -12, 0)),
    Part.LineSegment(App.Vector(70, -12, 0), App.Vector(70, 2, 0)),
    Part.LineSegment(App.Vector(70, 2, 0), App.Vector(-70, 2, 0)),
    Part.LineSegment(App.Vector(-70, 19, 0), App.Vector(-70, 5, 0)),
    Part.LineSegment(App.Vector(-70, 5, 0), App.Vector(70, 5, 0)),
    Part.LineSegment(App.Vector(70, 5, 0), App.Vector(70, 19, 0)),
    Part.LineSegment(App.Vector(70, 19, 0), App.Vector(-70, 19, 0)),
    Part.LineSegment(App.Vector(-70, 36, 0), App.Vector(-70, 22, 0)),
    Part.LineSegment(App.Vector(-70, 22, 0), App.Vector(70, 22, 0)),
    Part.LineSegment(App.Vector(70, 22, 0), App.Vector(70, 36, 0)),
    Part.LineSegment(App.Vector(70, 36, 0), App.Vector(-70, 36, 0)),
    Part.LineSegment(App.Vector(-70, 53, 0), App.Vector(-70, 39, 0)),
    Part.LineSegment(App.Vector(-70, 39, 0), App.Vector(70, 39, 0)),
    Part.LineSegment(App.Vector(70, 39, 0), App.Vector(70, 53, 0)),
    Part.LineSegment(App.Vector(70, 53, 0), App.Vector(-70, 53, 0)),
], False)
sketch5.addConstraint([
    Sketcher.Constraint("Coincident", 0, 2, 1, 1),
    Sketcher.Constraint("Coincident", 1, 2, 2, 1),
    Sketcher.Constraint("Coincident", 2, 2, 3, 1),
    Sketcher.Constraint("Coincident", 3, 2, 0, 1),
    Sketcher.Constraint("Coincident", 4, 2, 5, 1),
    Sketcher.Constraint("Coincident", 5, 2, 6, 1),
    Sketcher.Constraint("Coincident", 6, 2, 7, 1),
    Sketcher.Constraint("Coincident", 7, 2, 4, 1),
    Sketcher.Constraint("Coincident", 8, 2, 9, 1),
    Sketcher.Constraint("Coincident", 9, 2, 10, 1),
    Sketcher.Constraint("Coincident", 10, 2, 11, 1),
    Sketcher.Constraint("Coincident", 11, 2, 8, 1),
    Sketcher.Constraint("Coincident", 12, 2, 13, 1),
    Sketcher.Constraint("Coincident", 13, 2, 14, 1),
    Sketcher.Constraint("Coincident", 14, 2, 15, 1),
    Sketcher.Constraint("Coincident", 15, 2, 12, 1),
    Sketcher.Constraint("Coincident", 16, 2, 17, 1),
    Sketcher.Constraint("Coincident", 17, 2, 18, 1),
    Sketcher.Constraint("Coincident", 18, 2, 19, 1),
    Sketcher.Constraint("Coincident", 19, 2, 16, 1),
    Sketcher.Constraint("Coincident", 20, 2, 21, 1),
    Sketcher.Constraint("Coincident", 21, 2, 22, 1),
    Sketcher.Constraint("Coincident", 22, 2, 23, 1),
    Sketcher.Constraint("Coincident", 23, 2, 20, 1),
    Sketcher.Constraint("Coincident", 24, 2, 25, 1),
    Sketcher.Constraint("Coincident", 25, 2, 26, 1),
    Sketcher.Constraint("Coincident", 26, 2, 27, 1),
    Sketcher.Constraint("Coincident", 27, 2, 24, 1),
    Sketcher.Constraint("Vertical", 0),
    Sketcher.Constraint("Horizontal", 1),
    Sketcher.Constraint("Vertical", 2),
    Sketcher.Constraint("Horizontal", 3),
    Sketcher.Constraint("Vertical", 4),
    Sketcher.Constraint("Horizontal", 5),
    Sketcher.Constraint("Vertical", 6),
    Sketcher.Constraint("Horizontal", 7),
    Sketcher.Constraint("Vertical", 8),
    Sketcher.Constraint("Horizontal", 9),
    Sketcher.Constraint("Vertical", 10),
    Sketcher.Constraint("Horizontal", 11),
    Sketcher.Constraint("Vertical", 12),
    Sketcher.Constraint("Horizontal", 13),
    Sketcher.Constraint("Vertical", 14),
    Sketcher.Constraint("Horizontal", 15),
    Sketcher.Constraint("Vertical", 16),
    Sketcher.Constraint("Horizontal", 17),
    Sketcher.Constraint("Vertical", 18),
    Sketcher.Constraint("Horizontal", 19),
    Sketcher.Constraint("Vertical", 20),
    Sketcher.Constraint("Horizontal", 21),
    Sketcher.Constraint("Vertical", 22),
    Sketcher.Constraint("Horizontal", 23),
    Sketcher.Constraint("Vertical", 24),
    Sketcher.Constraint("Horizontal", 25),
    Sketcher.Constraint("Vertical", 26),
    Sketcher.Constraint("Horizontal", 27),
    Sketcher.Constraint("Vertical", 3, 2, 4, 2),
    Sketcher.Constraint("Vertical", 2, 2, 5, 2),
    Sketcher.Constraint("Vertical", 7, 2, 8, 2),
    Sketcher.Constraint("Vertical", 6, 2, 9, 2),
    Sketcher.Constraint("Vertical", 11, 2, 12, 2),
    Sketcher.Constraint("Vertical", 10, 2, 13, 2),
    Sketcher.Constraint("Vertical", 15, 2, 16, 2),
    Sketcher.Constraint("Vertical", 14, 2, 17, 2),
    Sketcher.Constraint("Vertical", 19, 2, 20, 2),
    Sketcher.Constraint("Vertical", 18, 2, 21, 2),
    Sketcher.Constraint("Vertical", 23, 2, 24, 2),
    Sketcher.Constraint("Vertical", 22, 2, 25, 2),
    Sketcher.Constraint("Equal", 2, 4),
    Sketcher.Constraint("Equal", 6, 8),
    Sketcher.Constraint("Equal", 10, 12),
    Sketcher.Constraint("Equal", 14, 16),
    Sketcher.Constraint("Equal", 18, 20),
    Sketcher.Constraint("Equal", 22, 24),
    Sketcher.Constraint("DistanceX", 1, 1, 1, 2, Q("140 mm")),
    Sketcher.Constraint("DistanceY", 0, 2, 0, 1, Q("14 mm")),
    Sketcher.Constraint("DistanceX", 0, 2, -1, 1, Q("70 mm")),
    Sketcher.Constraint("DistanceY", 0, 2, -1, 1, Q("63 mm")),
    Sketcher.Constraint("DistanceY", 4, 2, -1, 1, Q("46 mm")),
    Sketcher.Constraint("DistanceY", 8, 2, -1, 1, Q("29 mm")),
    Sketcher.Constraint("DistanceY", 12, 2, -1, 1, Q("12 mm")),
    Sketcher.Constraint("DistanceY", -1, 1, 16, 2, Q("5 mm")),
    Sketcher.Constraint("DistanceY", -1, 1, 20, 2, Q("22 mm")),
    Sketcher.Constraint("DistanceY", -1, 1, 24, 2, Q("39 mm")),
])
pad3 = body.newObject("PartDesign::Pad", "Pad002")
pad3.Profile = sketch5
pad3.Length = 2

doc.recompute()
